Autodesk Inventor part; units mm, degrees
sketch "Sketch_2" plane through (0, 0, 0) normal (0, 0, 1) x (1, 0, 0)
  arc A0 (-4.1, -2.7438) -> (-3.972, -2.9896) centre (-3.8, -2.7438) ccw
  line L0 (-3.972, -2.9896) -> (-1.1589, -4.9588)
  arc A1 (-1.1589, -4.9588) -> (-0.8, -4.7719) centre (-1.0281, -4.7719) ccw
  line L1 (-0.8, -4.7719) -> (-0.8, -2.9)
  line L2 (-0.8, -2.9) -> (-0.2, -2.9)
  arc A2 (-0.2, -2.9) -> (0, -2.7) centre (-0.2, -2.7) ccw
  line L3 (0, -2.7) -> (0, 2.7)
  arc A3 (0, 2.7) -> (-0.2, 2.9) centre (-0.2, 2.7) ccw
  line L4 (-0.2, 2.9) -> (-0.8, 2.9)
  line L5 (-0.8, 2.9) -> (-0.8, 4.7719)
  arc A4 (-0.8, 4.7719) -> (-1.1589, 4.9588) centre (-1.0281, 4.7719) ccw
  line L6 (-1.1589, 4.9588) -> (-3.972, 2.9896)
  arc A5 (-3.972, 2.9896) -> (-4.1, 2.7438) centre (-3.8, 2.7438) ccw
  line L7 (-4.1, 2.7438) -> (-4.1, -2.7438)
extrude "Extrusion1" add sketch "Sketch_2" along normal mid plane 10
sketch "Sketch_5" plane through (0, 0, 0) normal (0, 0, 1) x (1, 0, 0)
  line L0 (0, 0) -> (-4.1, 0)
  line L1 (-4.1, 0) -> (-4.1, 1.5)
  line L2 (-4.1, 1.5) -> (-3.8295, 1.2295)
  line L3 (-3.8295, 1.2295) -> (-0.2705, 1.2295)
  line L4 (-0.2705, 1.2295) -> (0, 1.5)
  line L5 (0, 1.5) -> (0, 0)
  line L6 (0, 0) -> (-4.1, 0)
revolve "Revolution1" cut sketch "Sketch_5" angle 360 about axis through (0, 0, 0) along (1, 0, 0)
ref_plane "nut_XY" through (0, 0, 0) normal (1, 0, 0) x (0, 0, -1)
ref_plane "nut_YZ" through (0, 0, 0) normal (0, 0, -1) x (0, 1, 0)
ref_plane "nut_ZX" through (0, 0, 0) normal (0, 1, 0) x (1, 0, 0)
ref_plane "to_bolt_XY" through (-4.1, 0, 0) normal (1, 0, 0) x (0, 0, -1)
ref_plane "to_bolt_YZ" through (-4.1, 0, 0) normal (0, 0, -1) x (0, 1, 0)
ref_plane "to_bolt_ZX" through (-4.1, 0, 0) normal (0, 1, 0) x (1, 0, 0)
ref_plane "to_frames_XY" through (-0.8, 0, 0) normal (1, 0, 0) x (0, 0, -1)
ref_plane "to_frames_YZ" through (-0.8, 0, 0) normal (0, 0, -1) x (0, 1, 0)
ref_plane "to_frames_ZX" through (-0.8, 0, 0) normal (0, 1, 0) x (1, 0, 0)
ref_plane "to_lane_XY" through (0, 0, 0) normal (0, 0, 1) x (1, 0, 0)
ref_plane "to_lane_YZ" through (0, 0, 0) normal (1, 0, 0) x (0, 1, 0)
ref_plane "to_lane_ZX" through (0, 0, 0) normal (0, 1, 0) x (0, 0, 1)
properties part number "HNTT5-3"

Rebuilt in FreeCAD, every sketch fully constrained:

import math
import FreeCAD as App
import Part
import Sketcher

V = App.Vector
Q = App.Units.Quantity

doc = App.newDocument("Part")
body = doc.addObject("PartDesign::Body", "Body")

# Sketch on XY plane
sketch1 = body.newObject("Sketcher::SketchObject", "Sketch")
sketch1.AttachmentSupport = (doc.getObject("XY_Plane"), [""])
sketch1.MapMode = "FlatFace"
sketch1.addGeometry([
    Part.LineSegment(V(-4.1, 2.7438, 0), V(-4.1, -2.7438, 0)),  # 0
    Part.ArcOfCircle(Part.Circle(V(-3.8, -2.7438, 0), V(0, 0, 1), 0.3), math.radians(180), math.radians(235.017367)),  # 1
    Part.LineSegment(V(-3.972, -2.9896, 0), V(-1.1589, -4.9588, 0)),  # 2
    Part.ArcOfCircle(Part.Circle(V(-1.0281, -4.7719, 0), V(0, 0, 1), 0.228123), math.radians(-124.985847), math.radians(0)),  # 3
    Part.LineSegment(V(-0.8, -4.7719, 0), V(-0.8, -2.9, 0)),  # 4
    Part.LineSegment(V(-0.8, -2.9, 0), V(-0.2, -2.9, 0)),  # 5
    Part.ArcOfCircle(Part.Circle(V(-0.2, -2.7, 0), V(0, 0, 1), 0.2), math.radians(-90), math.radians(0)),  # 6
    Part.LineSegment(V(0, -2.7, 0), V(0, 2.7, 0)),  # 7
    Part.ArcOfCircle(Part.Circle(V(-0.2, 2.7, 0), V(0, 0, 1), 0.2), math.radians(0), math.radians(90)),  # 8
    Part.LineSegment(V(-0.2, 2.9, 0), V(-0.8, 2.9, 0)),  # 9
    Part.LineSegment(V(-0.8, 2.9, 0), V(-0.8, 4.7719, 0)),  # 10
    Part.ArcOfCircle(Part.Circle(V(-1.0281, 4.7719, 0), V(0, 0, 1), 0.2281), math.radians(0), math.radians(124.985847)),  # 11
    Part.LineSegment(V(-1.1589, 4.9588, 0), V(-3.972, 2.9896, 0)),  # 12
    Part.ArcOfCircle(Part.Circle(V(-3.8, 2.7438, 0), V(0, 0, 1), 0.300003), math.radians(124.982633), math.radians(180)),  # 13
], False)
sketch1.addConstraint([
    Sketcher.Constraint("Tangent", 0, 2, 1, 1),
    Sketcher.Constraint("Tangent", 1, 2, 2, 1),
    Sketcher.Constraint("Tangent", 2, 2, 3, 1),
    Sketcher.Constraint("Tangent", 3, 2, 4, 1),
    Sketcher.Constraint("Coincident", 4, 2, 5, 1),
    Sketcher.Constraint("Tangent", 5, 2, 6, 1),
    Sketcher.Constraint("Tangent", 6, 2, 7, 1),
    Sketcher.Constraint("Tangent", 7, 2, 8, 1),
    Sketcher.Constraint("Tangent", 8, 2, 9, 1),
    Sketcher.Constraint("Coincident", 9, 2, 10, 1),
    Sketcher.Constraint("Tangent", 10, 2, 11, 1),
    Sketcher.Constraint("Tangent", 11, 2, 12, 1),
    Sketcher.Constraint("Tangent", 12, 2, 13, 1),
    Sketcher.Constraint("Tangent", 13, 2, 0, 1),
    Sketcher.Constraint("Vertical", 0),
    Sketcher.Constraint("Vertical", 4),
    Sketcher.Constraint("Horizontal", 5),
    Sketcher.Constraint("Vertical", 7),
    Sketcher.Constraint("Horizontal", 9),
    Sketcher.Constraint("Vertical", 10),
    Sketcher.Constraint("Equal", 6, 8),
    Sketcher.Constraint("Equal", 3, 11),
    Sketcher.Constraint("Equal", 1, 13),
    Sketcher.Constraint("Symmetric", 6, 2, 7, 2, -1, 1),
    Sketcher.Constraint("Symmetric", 3, 3, 11, 3, -1),
    Sketcher.Constraint("Vertical", 2, 2, 11, 2),
    Sketcher.Constraint("Radius", 1, Q("0.3 mm")),
    Sketcher.Constraint("Radius", 6, Q("0.2 mm")),
    Sketcher.Constraint("DistanceX", 5, 1, 5, 2, Q("0.6 mm")),
    Sketcher.Constraint("DistanceY", 7, 1, 7, 2, Q("5.4 mm")),
    Sketcher.Constraint("Radius", 11, Q("0.228 mm")),
    Sketcher.Constraint("DistanceX", 1, 3, 3, 2, Q("3 mm")),
    Sketcher.Constraint("DistanceY", 4, 1, 4, 2, Q("1.872 mm")),
    Sketcher.Constraint("DistanceY", 0, 2, 0, 1, Q("5.4876 mm")),
])
pad1 = body.newObject("PartDesign::Pad", "Pad")
pad1.Profile = sketch1
pad1.Length = 10
pad1.Midplane = True

# Sketch on XY plane
sketch2 = body.newObject("Sketcher::SketchObject", "Sketch001")
sketch2.AttachmentSupport = (doc.getObject("XY_Plane"), [""])
sketch2.MapMode = "FlatFace"
sketch2.addGeometry([
    Part.LineSegment(V(-4.1, 0, 0), V(0, 0, 0)),  # 0
    Part.LineSegment(V(0, 0, 0), V(0, 1.5, 0)),  # 1
    Part.LineSegment(V(0, 1.5, 0), V(-0.2705, 1.2295, 0)),  # 2
    Part.LineSegment(V(-0.2705, 1.2295, 0), V(-3.8295, 1.2295, 0)),  # 3
    Part.LineSegment(V(-3.8295, 1.2295, 0), V(-4.1, 1.5, 0)),  # 4
    Part.LineSegment(V(-4.1, 1.5, 0), V(-4.1, 0, 0)),  # 5
], False)
sketch2.addConstraint([
    Sketcher.Constraint("Coincident", 0, 2, 1, 1),
    Sketcher.Constraint("Coincident", 1, 2, 2, 1),
    Sketcher.Constraint("Coincident", 2, 2, 3, 1),
    Sketcher.Constraint("Coincident", 3, 2, 4, 1),
    Sketcher.Constraint("Coincident", 4, 2, 5, 1),
    Sketcher.Constraint("Coincident", 5, 2, 0, 1),
    Sketcher.Constraint("Horizontal", 0),
    Sketcher.Constraint("Vertical", 1),
    Sketcher.Constraint("Horizontal", 3),
    Sketcher.Constraint("Vertical", 5),
    Sketcher.Constraint("Coincident", 0, 2, -1, 1),
    Sketcher.Constraint("Perpendicular", 2, 4),
    Sketcher.Constraint("Horizontal", 1, 2, 4, 2),
    Sketcher.Constraint("Equal", 2, 4),
    Sketcher.Constraint("DistanceX", 0, 1, 0, 2, Q("4.1 mm")),
    Sketcher.Constraint("DistanceY", 1, 1, 1, 2, Q("1.5 mm")),
    Sketcher.Constraint("DistanceX", 3, 2, 3, 1, Q("3.559 mm")),
])
groove = body.newObject("PartDesign::Groove", "Groove")
groove.Profile = sketch2
groove.ReferenceAxis = (sketch2, ["H_Axis"])
groove.Angle = 360

doc.recompute()
